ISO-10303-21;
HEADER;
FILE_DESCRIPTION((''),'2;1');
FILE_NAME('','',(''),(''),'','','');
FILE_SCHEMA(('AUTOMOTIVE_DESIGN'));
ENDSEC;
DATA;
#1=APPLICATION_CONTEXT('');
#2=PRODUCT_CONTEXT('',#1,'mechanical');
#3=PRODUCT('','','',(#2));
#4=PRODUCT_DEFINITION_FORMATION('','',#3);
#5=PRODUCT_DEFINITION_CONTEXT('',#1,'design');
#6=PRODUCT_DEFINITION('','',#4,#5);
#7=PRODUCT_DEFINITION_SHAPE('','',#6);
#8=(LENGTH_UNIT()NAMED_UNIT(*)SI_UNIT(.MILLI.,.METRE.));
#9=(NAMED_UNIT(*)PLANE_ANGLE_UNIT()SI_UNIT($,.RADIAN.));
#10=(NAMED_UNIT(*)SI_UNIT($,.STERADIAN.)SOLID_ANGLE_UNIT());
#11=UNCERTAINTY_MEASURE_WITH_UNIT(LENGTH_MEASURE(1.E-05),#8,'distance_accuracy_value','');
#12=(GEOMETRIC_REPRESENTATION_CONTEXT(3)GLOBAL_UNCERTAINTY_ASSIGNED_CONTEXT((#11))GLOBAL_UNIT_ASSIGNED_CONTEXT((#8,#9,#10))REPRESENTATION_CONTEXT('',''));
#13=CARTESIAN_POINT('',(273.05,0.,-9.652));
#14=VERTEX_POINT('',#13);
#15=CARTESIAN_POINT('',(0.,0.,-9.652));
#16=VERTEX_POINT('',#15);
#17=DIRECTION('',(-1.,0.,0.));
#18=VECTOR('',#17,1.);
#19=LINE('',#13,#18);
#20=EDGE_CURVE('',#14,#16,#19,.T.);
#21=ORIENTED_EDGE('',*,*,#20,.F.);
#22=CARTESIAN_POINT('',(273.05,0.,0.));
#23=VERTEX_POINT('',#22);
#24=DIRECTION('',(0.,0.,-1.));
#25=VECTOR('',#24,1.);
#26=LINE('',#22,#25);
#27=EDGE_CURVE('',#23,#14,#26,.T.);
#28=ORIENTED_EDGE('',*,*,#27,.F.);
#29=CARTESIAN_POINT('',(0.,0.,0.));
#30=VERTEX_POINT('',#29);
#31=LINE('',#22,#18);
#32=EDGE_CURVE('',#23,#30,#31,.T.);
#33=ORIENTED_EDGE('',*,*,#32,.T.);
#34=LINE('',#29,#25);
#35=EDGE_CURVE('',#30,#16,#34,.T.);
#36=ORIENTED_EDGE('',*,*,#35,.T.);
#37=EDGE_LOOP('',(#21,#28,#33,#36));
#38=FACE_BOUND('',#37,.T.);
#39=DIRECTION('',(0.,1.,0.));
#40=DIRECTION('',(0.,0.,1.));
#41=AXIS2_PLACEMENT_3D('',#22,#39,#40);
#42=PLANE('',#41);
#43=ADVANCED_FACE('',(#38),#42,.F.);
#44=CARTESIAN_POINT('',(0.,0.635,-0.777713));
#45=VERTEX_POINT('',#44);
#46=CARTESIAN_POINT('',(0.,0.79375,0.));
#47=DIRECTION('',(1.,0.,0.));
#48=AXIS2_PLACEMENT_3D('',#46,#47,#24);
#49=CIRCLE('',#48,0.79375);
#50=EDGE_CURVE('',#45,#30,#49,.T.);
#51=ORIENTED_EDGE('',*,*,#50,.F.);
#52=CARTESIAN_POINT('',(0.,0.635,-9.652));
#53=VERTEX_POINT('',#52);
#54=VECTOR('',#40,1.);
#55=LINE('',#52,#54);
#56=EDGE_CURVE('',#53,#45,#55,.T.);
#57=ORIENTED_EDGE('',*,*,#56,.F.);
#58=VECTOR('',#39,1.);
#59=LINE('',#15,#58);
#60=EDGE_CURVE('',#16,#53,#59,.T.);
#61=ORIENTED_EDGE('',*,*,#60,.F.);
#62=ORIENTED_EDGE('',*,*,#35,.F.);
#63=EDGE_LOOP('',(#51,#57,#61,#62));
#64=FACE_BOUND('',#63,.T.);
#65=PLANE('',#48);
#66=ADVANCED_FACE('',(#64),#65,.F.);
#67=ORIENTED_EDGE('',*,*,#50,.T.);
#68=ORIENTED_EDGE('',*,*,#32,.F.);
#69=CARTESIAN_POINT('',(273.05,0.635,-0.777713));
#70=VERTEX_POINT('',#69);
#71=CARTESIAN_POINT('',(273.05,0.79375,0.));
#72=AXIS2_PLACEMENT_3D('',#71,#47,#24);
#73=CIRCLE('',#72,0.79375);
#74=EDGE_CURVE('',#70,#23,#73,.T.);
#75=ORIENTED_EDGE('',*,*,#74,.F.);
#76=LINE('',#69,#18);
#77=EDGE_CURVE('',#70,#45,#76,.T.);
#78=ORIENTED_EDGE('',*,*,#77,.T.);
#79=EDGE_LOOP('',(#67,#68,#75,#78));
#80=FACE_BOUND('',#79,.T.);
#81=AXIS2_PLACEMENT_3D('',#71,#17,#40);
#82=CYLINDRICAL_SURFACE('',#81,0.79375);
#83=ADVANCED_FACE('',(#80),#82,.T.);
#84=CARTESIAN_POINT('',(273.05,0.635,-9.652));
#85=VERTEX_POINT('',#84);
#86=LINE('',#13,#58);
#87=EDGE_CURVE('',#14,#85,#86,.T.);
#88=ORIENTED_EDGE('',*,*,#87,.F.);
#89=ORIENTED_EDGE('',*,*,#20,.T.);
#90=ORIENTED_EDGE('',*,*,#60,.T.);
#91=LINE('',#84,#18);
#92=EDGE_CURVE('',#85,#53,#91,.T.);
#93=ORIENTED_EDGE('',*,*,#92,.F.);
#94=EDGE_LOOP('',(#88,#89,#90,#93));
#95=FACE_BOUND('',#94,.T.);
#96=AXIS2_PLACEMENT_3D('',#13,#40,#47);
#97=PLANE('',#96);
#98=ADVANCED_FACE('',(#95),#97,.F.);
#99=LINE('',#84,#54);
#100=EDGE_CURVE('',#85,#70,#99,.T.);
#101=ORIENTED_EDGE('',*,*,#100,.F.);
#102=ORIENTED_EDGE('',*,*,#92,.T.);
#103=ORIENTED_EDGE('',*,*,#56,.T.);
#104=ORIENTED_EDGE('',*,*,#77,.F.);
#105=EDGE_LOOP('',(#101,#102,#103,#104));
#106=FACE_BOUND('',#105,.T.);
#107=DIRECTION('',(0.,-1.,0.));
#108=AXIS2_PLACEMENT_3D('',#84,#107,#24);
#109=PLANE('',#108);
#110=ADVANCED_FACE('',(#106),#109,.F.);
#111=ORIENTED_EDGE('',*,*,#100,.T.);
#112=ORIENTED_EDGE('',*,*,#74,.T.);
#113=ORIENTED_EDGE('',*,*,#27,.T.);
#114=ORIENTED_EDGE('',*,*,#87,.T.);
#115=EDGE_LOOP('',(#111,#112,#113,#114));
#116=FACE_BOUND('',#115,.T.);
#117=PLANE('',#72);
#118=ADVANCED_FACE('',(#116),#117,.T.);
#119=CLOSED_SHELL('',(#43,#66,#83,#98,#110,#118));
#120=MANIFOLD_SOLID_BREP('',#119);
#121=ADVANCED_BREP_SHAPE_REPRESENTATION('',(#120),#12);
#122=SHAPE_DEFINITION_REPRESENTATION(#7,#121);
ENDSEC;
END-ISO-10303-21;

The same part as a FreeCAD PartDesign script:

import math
import FreeCAD as App
import Part
import Sketcher
from FreeCAD import Vector
Q = App.Units.Quantity

doc = App.newDocument("Part")
body = doc.addObject("PartDesign::Body", "Body")

sketch1 = doc.addObject("Sketcher::SketchObject", "Sketch")
body.addObject(sketch1)
sketch1.AttachmentSupport = (doc.YZ_Plane, [""])
sketch1.MapMode = "FlatFace"
sketch1.addGeometry([
    Part.LineSegment(Vector(0, 0, 0), Vector(0, -9.7, 0)),
    Part.LineSegment(Vector(0, -9.7, 0), Vector(0.6, -9.7, 0)),
    Part.LineSegment(Vector(0.6, -9.7, 0), Vector(0.6, -0.8, 0)),
    Part.ArcOfCircle(Part.Circle(Vector(0.8, 0, 0), Vector(0, 0, 1), 0.8), math.radians(-102), math.radians(180)),
], False)
sketch1.addConstraint([
    Sketcher.Constraint("Coincident", 0, 2, 1, 1),
    Sketcher.Constraint("Coincident", 1, 2, 2, 1),
    Sketcher.Constraint("Coincident", 2, 2, 3, 1),
    Sketcher.Constraint("Tangent", 3, 2, 0, 1),
    Sketcher.Constraint("Vertical", 0),
    Sketcher.Constraint("Horizontal", 1),
    Sketcher.Constraint("Vertical", 2),
    Sketcher.Constraint("Coincident", 3, 2, -1, 1),
    Sketcher.Constraint("Radius", 3, Q("0.03125 in")),
    Sketcher.Constraint("DistanceY", 0, 2, 0, 1, Q("0.38 in")),
    Sketcher.Constraint("DistanceX", 1, 1, 1, 2, Q("0.025 in")),
])
pad1 = doc.addObject("PartDesign::Pad", "Pad")
body.addObject(pad1)
pad1.Profile = sketch1
pad1.Length = Q("10.75 in")

doc.recompute()
